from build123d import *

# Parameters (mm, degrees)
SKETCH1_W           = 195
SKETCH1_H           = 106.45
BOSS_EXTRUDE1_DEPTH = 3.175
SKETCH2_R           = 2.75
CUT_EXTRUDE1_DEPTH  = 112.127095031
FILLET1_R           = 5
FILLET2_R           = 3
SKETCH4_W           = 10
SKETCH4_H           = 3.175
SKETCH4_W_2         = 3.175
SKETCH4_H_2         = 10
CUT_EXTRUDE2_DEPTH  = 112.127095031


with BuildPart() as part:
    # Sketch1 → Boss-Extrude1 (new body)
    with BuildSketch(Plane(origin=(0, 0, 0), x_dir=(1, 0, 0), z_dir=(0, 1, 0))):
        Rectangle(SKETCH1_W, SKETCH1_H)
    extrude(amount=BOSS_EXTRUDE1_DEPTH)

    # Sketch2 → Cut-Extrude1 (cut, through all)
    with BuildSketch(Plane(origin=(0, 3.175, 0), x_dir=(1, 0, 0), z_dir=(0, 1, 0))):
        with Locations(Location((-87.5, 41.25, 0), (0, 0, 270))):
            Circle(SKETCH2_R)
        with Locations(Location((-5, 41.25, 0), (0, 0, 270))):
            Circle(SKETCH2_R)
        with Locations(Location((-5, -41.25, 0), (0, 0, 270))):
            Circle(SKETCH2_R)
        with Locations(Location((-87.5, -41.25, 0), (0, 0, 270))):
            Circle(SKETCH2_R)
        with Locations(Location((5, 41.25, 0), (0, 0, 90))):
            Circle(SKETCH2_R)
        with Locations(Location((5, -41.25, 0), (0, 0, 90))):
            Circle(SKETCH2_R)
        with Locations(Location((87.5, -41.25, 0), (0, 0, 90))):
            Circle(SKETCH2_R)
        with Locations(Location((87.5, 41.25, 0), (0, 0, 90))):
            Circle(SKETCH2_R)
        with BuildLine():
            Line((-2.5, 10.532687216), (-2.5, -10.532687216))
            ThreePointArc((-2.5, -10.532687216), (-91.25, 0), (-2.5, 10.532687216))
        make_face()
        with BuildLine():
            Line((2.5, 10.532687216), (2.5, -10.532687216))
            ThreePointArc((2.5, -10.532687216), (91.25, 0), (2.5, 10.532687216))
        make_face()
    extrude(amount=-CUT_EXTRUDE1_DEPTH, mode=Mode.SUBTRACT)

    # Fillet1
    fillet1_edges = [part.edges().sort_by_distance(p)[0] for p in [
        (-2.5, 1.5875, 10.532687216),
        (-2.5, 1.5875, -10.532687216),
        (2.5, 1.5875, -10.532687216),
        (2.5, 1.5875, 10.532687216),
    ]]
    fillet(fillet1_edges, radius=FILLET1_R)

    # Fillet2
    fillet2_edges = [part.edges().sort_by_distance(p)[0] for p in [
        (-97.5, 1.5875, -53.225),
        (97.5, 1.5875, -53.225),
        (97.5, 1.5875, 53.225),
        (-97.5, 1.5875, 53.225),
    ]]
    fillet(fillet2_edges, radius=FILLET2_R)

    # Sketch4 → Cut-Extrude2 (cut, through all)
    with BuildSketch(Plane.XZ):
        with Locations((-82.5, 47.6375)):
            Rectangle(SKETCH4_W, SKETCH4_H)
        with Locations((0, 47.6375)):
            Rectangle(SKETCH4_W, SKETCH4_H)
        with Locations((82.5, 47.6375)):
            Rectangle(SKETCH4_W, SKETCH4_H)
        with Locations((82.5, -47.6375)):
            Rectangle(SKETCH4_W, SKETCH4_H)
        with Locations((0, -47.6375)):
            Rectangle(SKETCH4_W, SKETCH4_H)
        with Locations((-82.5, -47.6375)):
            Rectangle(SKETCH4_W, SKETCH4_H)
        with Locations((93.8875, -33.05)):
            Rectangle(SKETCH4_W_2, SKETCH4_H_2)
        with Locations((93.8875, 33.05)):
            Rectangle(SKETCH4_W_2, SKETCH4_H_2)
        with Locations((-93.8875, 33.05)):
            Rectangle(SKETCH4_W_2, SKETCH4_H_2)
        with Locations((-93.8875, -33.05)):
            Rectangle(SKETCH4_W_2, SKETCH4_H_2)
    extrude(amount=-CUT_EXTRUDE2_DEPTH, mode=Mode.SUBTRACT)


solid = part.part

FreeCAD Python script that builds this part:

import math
import FreeCAD as App
import Part
import Sketcher
Q = App.Units.Quantity


def edges_at(feature, points):
    """Names of the edges that pass closest to the given points."""
    edges = feature.Shape.Edges
    near = lambda p: min(range(len(edges)), key=lambda i: edges[i].distToShape(Part.Vertex(*p))[0])
    return sorted({f"Edge{near(p) + 1}" for p in points})

doc = App.newDocument("Part")
body = doc.addObject("PartDesign::Body", "Body")

# Sketch on XZ plane
sketch1 = body.newObject("Sketcher::SketchObject", "Sketch")
sketch1.AttachmentSupport = (doc.getObject("XZ_Plane"), [""])
sketch1.MapMode = "FlatFace"
sketch1.addGeometry([
    Part.LineSegment(App.Vector(-98, -53, 0), App.Vector(-98, 53, 0)),
    Part.LineSegment(App.Vector(-98, 53, 0), App.Vector(98, 53, 0)),
    Part.LineSegment(App.Vector(98, 53, 0), App.Vector(98, -53, 0)),
    Part.LineSegment(App.Vector(98, -53, 0), App.Vector(-98, -53, 0)),
], False)
sketch1.addConstraint([
    Sketcher.Constraint("Coincident", 0, 2, 1, 1),
    Sketcher.Constraint("Coincident", 1, 2, 2, 1),
    Sketcher.Constraint("Coincident", 2, 2, 3, 1),
    Sketcher.Constraint("Coincident", 3, 2, 0, 1),
    Sketcher.Constraint("Vertical", 0),
    Sketcher.Constraint("Horizontal", 1),
    Sketcher.Constraint("Vertical", 2),
    Sketcher.Constraint("Horizontal", 3),
    Sketcher.Constraint("Symmetric", 0, 2, 2, 2, -1, 1),
    Sketcher.Constraint("DistanceX", 1, 1, 1, 2, Q("195 mm")),
    Sketcher.Constraint("DistanceY", 0, 1, 0, 2, Q("106.45 mm")),
])
pad1 = body.newObject("PartDesign::Pad", "Pad")
pad1.Profile = sketch1
pad1.Length = 3.175
pad1.Reversed = True

# Sketch on XZ plane
sketch2 = body.newObject("Sketcher::SketchObject", "Sketch001")
sketch2.AttachmentSupport = (doc.getObject("XZ_Plane"), [""])
sketch2.MapMode = "FlatFace"
sketch2.AttachmentOffset = App.Placement(App.Vector(0, 0, -3.175), App.Rotation())
sketch2.addGeometry([
    Part.Circle(App.Vector(-87.5, -41.2, 0), App.Vector(0, 0, 1), 2.8),  # 0
    Part.Circle(App.Vector(-5, -41.2, 0), App.Vector(0, 0, 1), 2.8),  # 1
    Part.Circle(App.Vector(-5, 41.2, 0), App.Vector(0, 0, 1), 2.8),  # 2
    Part.Circle(App.Vector(-87.5, 41.2, 0), App.Vector(0, 0, 1), 2.8),  # 3
    Part.Circle(App.Vector(5, -41.2, 0), App.Vector(0, 0, 1), 2.8),  # 4
    Part.Circle(App.Vector(5, 41.2, 0), App.Vector(0, 0, 1), 2.8),  # 5
    Part.Circle(App.Vector(87.5, 41.2, 0), App.Vector(0, 0, 1), 2.8),  # 6
    Part.Circle(App.Vector(87.5, -41.2, 0), App.Vector(0, 0, 1), 2.8),  # 7
    Part.LineSegment(App.Vector(-2.5, 10.5, 0), App.Vector(-2.5, -10.5, 0)),  # 8
    Part.ArcOfCircle(Part.Circle(App.Vector(-46.2, 0, 0), App.Vector(0, 0, 1), 45), math.radians(14), math.radians(346)),  # 9
    Part.LineSegment(App.Vector(2.5, -10.5, 0), App.Vector(2.5, 10.5, 0)),  # 10
    Part.ArcOfCircle(Part.Circle(App.Vector(46.2, 0, 0), App.Vector(0, 0, 1), 45), math.radians(-166), math.radians(166)),  # 11
], False)
sketch2.addConstraint([
    Sketcher.Constraint("Coincident", 8, 1, 9, 1),
    Sketcher.Constraint("Coincident", 9, 2, 8, 2),
    Sketcher.Constraint("Coincident", 10, 1, 11, 1),
    Sketcher.Constraint("Coincident", 11, 2, 10, 2),
    Sketcher.Constraint("Vertical", 8),
    Sketcher.Constraint("Vertical", 10),
    Sketcher.Constraint("Equal", 0, 1),
    Sketcher.Constraint("Equal", 1, 2),
    Sketcher.Constraint("Equal", 2, 3),
    Sketcher.Constraint("Equal", 3, 4),
    Sketcher.Constraint("Equal", 4, 5),
    Sketcher.Constraint("Equal", 5, 6),
    Sketcher.Constraint("Equal", 6, 7),
    Sketcher.Constraint("Equal", 9, 11),
    Sketcher.Constraint("Symmetric", 2, 3, 4, 3, -1, 1),
    Sketcher.Constraint("Symmetric", 1, 3, 5, 3, -1, 1),
    Sketcher.Constraint("Symmetric", 0, 3, 6, 3, -1, 1),
    Sketcher.Constraint("Symmetric", 3, 3, 7, 3, -1, 1),
    Sketcher.Constraint("Symmetric", 9, 3, 11, 3, -1, 1),
    Sketcher.Constraint("Symmetric", 1, 3, 4, 3, -2),
    Sketcher.Constraint("Symmetric", 3, 3, 6, 3, -2),
    Sketcher.Constraint("Symmetric", 9, 2, 10, 1, -2),
    Sketcher.Constraint("Horizontal", 0, 3, 1, 3),
    Sketcher.Constraint("Radius", 9, Q("45 mm")),
    Sketcher.Constraint("Diameter", 0, Q("5.5 mm")),
    Sketcher.Constraint("DistanceX", 1, 3, -1, 1, Q("5 mm")),
    Sketcher.Constraint("DistanceX", 3, 3, 6, 3, Q("175 mm")),
    Sketcher.Constraint("DistanceX", 9, 2, 10, 1, Q("5 mm")),
    Sketcher.Constraint("DistanceY", 1, 3, 2, 3, Q("82.5 mm")),
    Sketcher.Constraint("DistanceX", 9, 3, -1, 1, Q("46.25 mm")),
])
pocket1 = body.newObject("PartDesign::Pocket", "Pocket")
pocket1.Profile = sketch2
pocket1.Type = "ThroughAll"
pocket1.Reversed = True
doc.recompute()

fillet = body.newObject("PartDesign::Fillet", "Fillet")
fillet.Base = (pocket1, edges_at(pocket1, [
    (-2.5, 1.587, 10.533),
    (-2.5, 1.587, -10.533),
    (2.5, 1.587, -10.533),
    (2.5, 1.587, 10.533),
]))
fillet.Radius = 5
doc.recompute()

fillet2 = body.newObject("PartDesign::Fillet", "Fillet001")
fillet2.Base = (fillet, edges_at(fillet, [
    (-97.5, 1.587, -53.225),
    (97.5, 1.587, -53.225),
    (97.5, 1.587, 53.225),
    (-97.5, 1.587, 53.225),
]))
fillet2.Radius = 3

# Sketch on XZ plane
sketch3 = body.newObject("Sketcher::SketchObject", "Sketch002")
sketch3.AttachmentSupport = (doc.getObject("XZ_Plane"), [""])
sketch3.MapMode = "FlatFace"
sketch3.addGeometry([
    Part.LineSegment(App.Vector(-87.5, 49.2, 0), App.Vector(-87.5, 46, 0)),  # 0
    Part.LineSegment(App.Vector(-87.5, 46, 0), App.Vector(-77.5, 46, 0)),  # 1
    Part.LineSegment(App.Vector(-77.5, 46, 0), App.Vector(-77.5, 49.2, 0)),  # 2
    Part.LineSegment(App.Vector(-77.5, 49.2, 0), App.Vector(-87.5, 49.2, 0)),  # 3
    Part.LineSegment(App.Vector(-5, 49.2, 0), App.Vector(-5, 46, 0)),  # 4
    Part.LineSegment(App.Vector(-5, 46, 0), App.Vector(5, 46, 0)),  # 5
    Part.LineSegment(App.Vector(5, 46, 0), App.Vector(5, 49.2, 0)),  # 6
    Part.LineSegment(App.Vector(5, 49.2, 0), App.Vector(-5, 49.2, 0)),  # 7
    Part.LineSegment(App.Vector(77.5, 49.2, 0), App.Vector(77.5, 46, 0)),  # 8
    Part.LineSegment(App.Vector(77.5, 46, 0), App.Vector(87.5, 46, 0)),  # 9
    Part.LineSegment(App.Vector(87.5, 46, 0), App.Vector(87.5, 49.2, 0)),  # 10
    Part.LineSegment(App.Vector(87.5, 49.2, 0), App.Vector(77.5, 49.2, 0)),  # 11
    Part.LineSegment(App.Vector(77.5, -46, 0), App.Vector(77.5, -49.2, 0)),  # 12
    Part.LineSegment(App.Vector(77.5, -49.2, 0), App.Vector(87.5, -49.2, 0)),  # 13
    Part.LineSegment(App.Vector(87.5, -49.2, 0), App.Vector(87.5, -46, 0)),  # 14
    Part.LineSegment(App.Vector(87.5, -46, 0), App.Vector(77.5, -46, 0)),  # 15
    Part.LineSegment(App.Vector(-5, -46, 0), App.Vector(-5, -49.2, 0)),  # 16
    Part.LineSegment(App.Vector(-5, -49.2, 0), App.Vector(5, -49.2, 0)),  # 17
    Part.LineSegment(App.Vector(5, -49.2, 0), App.Vector(5, -46, 0)),  # 18
    Part.LineSegment(App.Vector(5, -46, 0), App.Vector(-5, -46, 0)),  # 19
    Part.LineSegment(App.Vector(-87.5, -46, 0), App.Vector(-87.5, -49.2, 0)),  # 20
    Part.LineSegment(App.Vector(-87.5, -49.2, 0), App.Vector(-77.5, -49.2, 0)),  # 21
    Part.LineSegment(App.Vector(-77.5, -49.2, 0), App.Vector(-77.5, -46, 0)),  # 22
    Part.LineSegment(App.Vector(-77.5, -46, 0), App.Vector(-87.5, -46, 0)),  # 23
    Part.LineSegment(App.Vector(92.3, -28.1, 0), App.Vector(92.3, -38, 0)),  # 24
    Part.LineSegment(App.Vector(92.3, -38, 0), App.Vector(95.5, -38, 0)),  # 25
    Part.LineSegment(App.Vector(95.5, -38, 0), App.Vector(95.5, -28.1, 0)),  # 26
    Part.LineSegment(App.Vector(95.5, -28.1, 0), App.Vector(92.3, -28.1, 0)),  # 27
    Part.LineSegment(App.Vector(92.3, 38, 0), App.Vector(92.3, 28.1, 0)),  # 28
    Part.LineSegment(App.Vector(92.3, 28.1, 0), App.Vector(95.5, 28.1, 0)),  # 29
    Part.LineSegment(App.Vector(95.5, 28.1, 0), App.Vector(95.5, 38, 0)),  # 30
    Part.LineSegment(App.Vector(95.5, 38, 0), App.Vector(92.3, 38, 0)),  # 31
    Part.LineSegment(App.Vector(-95.5, 38, 0), App.Vector(-95.5, 28.1, 0)),  # 32
    Part.LineSegment(App.Vector(-95.5, 28.1, 0), App.Vector(-92.3, 28.1, 0)),  # 33
    Part.LineSegment(App.Vector(-92.3, 28.1, 0), App.Vector(-92.3, 38, 0)),  # 34
    Part.LineSegment(App.Vector(-92.3, 38, 0), App.Vector(-95.5, 38, 0)),  # 35
    Part.LineSegment(App.Vector(-95.5, -28.1, 0), App.Vector(-95.5, -38, 0)),  # 36
    Part.LineSegment(App.Vector(-95.5, -38, 0), App.Vector(-92.3, -38, 0)),  # 37
    Part.LineSegment(App.Vector(-92.3, -38, 0), App.Vector(-92.3, -28.1, 0)),  # 38
    Part.LineSegment(App.Vector(-92.3, -28.1, 0), App.Vector(-95.5, -28.1, 0)),  # 39
], False)
sketch3.addConstraint([
    Sketcher.Constraint("Coincident", 0, 2, 1, 1),
    Sketcher.Constraint("Coincident", 1, 2, 2, 1),
    Sketcher.Constraint("Coincident", 2, 2, 3, 1),
    Sketcher.Constraint("Coincident", 3, 2, 0, 1),
    Sketcher.Constraint("Coincident", 4, 2, 5, 1),
    Sketcher.Constraint("Coincident", 5, 2, 6, 1),
    Sketcher.Constraint("Coincident", 6, 2, 7, 1),
    Sketcher.Constraint("Coincident", 7, 2, 4, 1),
    Sketcher.Constraint("Coincident", 8, 2, 9, 1),
    Sketcher.Constraint("Coincident", 9, 2, 10, 1),
    Sketcher.Constraint("Coincident", 10, 2, 11, 1),
    Sketcher.Constraint("Coincident", 11, 2, 8, 1),
    Sketcher.Constraint("Coincident", 12, 2, 13, 1),
    Sketcher.Constraint("Coincident", 13, 2, 14, 1),
    Sketcher.Constraint("Coincident", 14, 2, 15, 1),
    Sketcher.Constraint("Coincident", 15, 2, 12, 1),
    Sketcher.Constraint("Coincident", 16, 2, 17, 1),
    Sketcher.Constraint("Coincident", 17, 2, 18, 1),
    Sketcher.Constraint("Coincident", 18, 2, 19, 1),
    Sketcher.Constraint("Coincident", 19, 2, 16, 1),
    Sketcher.Constraint("Coincident", 20, 2, 21, 1),
    Sketcher.Constraint("Coincident", 21, 2, 22, 1),
    Sketcher.Constraint("Coincident", 22, 2, 23, 1),
    Sketcher.Constraint("Coincident", 23, 2, 20, 1),
    Sketcher.Constraint("Coincident", 24, 2, 25, 1),
    Sketcher.Constraint("Coincident", 25, 2, 26, 1),
    Sketcher.Constraint("Coincident", 26, 2, 27, 1),
    Sketcher.Constraint("Coincident", 27, 2, 24, 1),
    Sketcher.Constraint("Coincident", 28, 2, 29, 1),
    Sketcher.Constraint("Coincident", 29, 2, 30, 1),
    Sketcher.Constraint("Coincident", 30, 2, 31, 1),
    Sketcher.Constraint("Coincident", 31, 2, 28, 1),
    Sketcher.Constraint("Coincident", 32, 2, 33, 1),
    Sketcher.Constraint("Coincident", 33, 2, 34, 1),
    Sketcher.Constraint("Coincident", 34, 2, 35, 1),
    Sketcher.Constraint("Coincident", 35, 2, 32, 1),
    Sketcher.Constraint("Coincident", 36, 2, 37, 1),
    Sketcher.Constraint("Coincident", 37, 2, 38, 1),
    Sketcher.Constraint("Coincident", 38, 2, 39, 1),
    Sketcher.Constraint("Coincident", 39, 2, 36, 1),
    Sketcher.Constraint("Vertical", 0),
    Sketcher.Constraint("Horizontal", 1),
    Sketcher.Constraint("Vertical", 2),
    Sketcher.Constraint("Horizontal", 3),
    Sketcher.Constraint("Vertical", 4),
    Sketcher.Constraint("Horizontal", 5),
    Sketcher.Constraint("Vertical", 6),
    Sketcher.Constraint("Horizontal", 7),
    Sketcher.Constraint("Vertical", 8),
    Sketcher.Constraint("Horizontal", 9),
    Sketcher.Constraint("Vertical", 10),
    Sketcher.Constraint("Horizontal", 11),
    Sketcher.Constraint("Vertical", 12),
    Sketcher.Constraint("Horizontal", 13),
    Sketcher.Constraint("Vertical", 14),
    Sketcher.Constraint("Horizontal", 15),
    Sketcher.Constraint("Vertical", 16),
    Sketcher.Constraint("Horizontal", 17),
    Sketcher.Constraint("Vertical", 18),
    Sketcher.Constraint("Horizontal", 19),
    Sketcher.Constraint("Vertical", 20),
    Sketcher.Constraint("Horizontal", 21),
    Sketcher.Constraint("Vertical", 22),
    Sketcher.Constraint("Horizontal", 23),
    Sketcher.Constraint("Vertical", 24),
    Sketcher.Constraint("Horizontal", 25),
    Sketcher.Constraint("Vertical", 26),
    Sketcher.Constraint("Horizontal", 27),
    Sketcher.Constraint("Vertical", 28),
    Sketcher.Constraint("Horizontal", 29),
    Sketcher.Constraint("Vertical", 30),
    Sketcher.Constraint("Horizontal", 31),
    Sketcher.Constraint("Vertical", 32),
    Sketcher.Constraint("Horizontal", 33),
    Sketcher.Constraint("Vertical", 34),
    Sketcher.Constraint("Horizontal", 35),
    Sketcher.Constraint("Vertical", 36),
    Sketcher.Constraint("Horizontal", 37),
    Sketcher.Constraint("Vertical", 38),
    Sketcher.Constraint("Horizontal", 39),
    Sketcher.Constraint("Symmetric", 2, 2, 12, 2, -1, 1),
    Sketcher.Constraint("Symmetric", 0, 2, 14, 2, -1, 1),
    Sketcher.Constraint("Symmetric", 6, 2, 16, 2, -1, 1),
    Sketcher.Constraint("Symmetric", 4, 2, 18, 2, -1, 1),
    Sketcher.Constraint("Symmetric", 10, 2, 20, 2, -1, 1),
    Sketcher.Constraint("Symmetric", 8, 2, 22, 2, -1, 1),
    Sketcher.Constraint("Symmetric", 26, 2, 32, 2, -1, 1),
    Sketcher.Constraint("Symmetric", 24, 2, 34, 2, -1, 1),
    Sketcher.Constraint("Symmetric", 30, 2, 36, 2, -1, 1),
    Sketcher.Constraint("Symmetric", 28, 2, 38, 2, -1, 1),
    Sketcher.Constraint("Symmetric", 1, 2, 8, 2, -2),
    Sketcher.Constraint("Symmetric", 3, 2, 10, 2, -2),
    Sketcher.Constraint("Symmetric", 29, 2, 32, 2, -2),
    Sketcher.Constraint("Symmetric", 31, 2, 34, 2, -2),
    Sketcher.Constraint("Horizontal", 1, 2, 4, 2),
    Sketcher.Constraint("Horizontal", 3, 2, 6, 2),
    Sketcher.Constraint("Vertical", 7, 2, 16, 2),
    Sketcher.Constraint("Equal", 3, 5),
    Sketcher.Constraint("Equal", 39, 0),
    Sketcher.Constraint("Equal", 23, 24),
    Sketcher.Constraint("DistanceX", 1, 1, 1, 2, Q("10 mm")),
    Sketcher.Constraint("DistanceX", 1, 2, 8, 2, Q("155 mm")),
    Sketcher.Constraint("DistanceY", 14, 2, 24, 2, Q("8 mm")),
    Sketcher.Constraint("DistanceX", -1, 1, 24, 2, Q("92.3 mm")),
    Sketcher.Constraint("DistanceY", 14, 2, 9, 2, Q("92.1 mm")),
    Sketcher.Constraint("DistanceX", 25, 1, 25, 2, Q("3.175 mm")),
])
pocket2 = body.newObject("PartDesign::Pocket", "Pocket001")
pocket2.Profile = sketch3
pocket2.Type = "ThroughAll"

doc.recompute()
